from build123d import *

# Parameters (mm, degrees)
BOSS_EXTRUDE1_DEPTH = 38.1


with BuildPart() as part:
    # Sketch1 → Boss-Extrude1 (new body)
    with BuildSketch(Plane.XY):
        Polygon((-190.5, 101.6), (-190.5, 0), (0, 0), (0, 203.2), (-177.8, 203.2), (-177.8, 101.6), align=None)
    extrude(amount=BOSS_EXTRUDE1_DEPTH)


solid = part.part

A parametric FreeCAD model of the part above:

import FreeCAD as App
import Part
import Sketcher
from FreeCAD import Vector
Q = App.Units.Quantity


def add_polygon(sketch, points):
    """Adds a closed chain of lines whose ends are joined by coincident constraints."""
    first, n = sketch.GeometryCount, len(points)
    for a, b in zip(points, points[1:] + points[:1]):
        sketch.addGeometry(Part.LineSegment(App.Vector(*a, 0), App.Vector(*b, 0)), False)
    for i in range(n):
        sketch.addConstraint(Sketcher.Constraint("Coincident", first + i, 2, first + (i + 1) % n, 1))

doc = App.newDocument("Part")
body = doc.addObject("PartDesign::Body", "Body")

# Sketch on XY plane
sketch1 = doc.addObject("Sketcher::SketchObject", "Sketch")
body.addObject(sketch1)
sketch1.AttachmentSupport = (doc.XY_Plane, [""])
sketch1.MapMode = "FlatFace"
add_polygon(sketch1, [(-190, 102), (-190, 0), (0, 0), (0, 203), (-178, 203), (-178, 102)])  # lines 0-5
sketch1.addConstraint([
    Sketcher.Constraint("Vertical", 0),
    Sketcher.Constraint("Horizontal", 1),
    Sketcher.Constraint("Vertical", 2),
    Sketcher.Constraint("Horizontal", 3),
    Sketcher.Constraint("Vertical", 4),
    Sketcher.Constraint("Horizontal", 5),
    Sketcher.Constraint("Coincident", 1, 2, -1, 1),
    Sketcher.Constraint("Equal", 0, 4),
    Sketcher.Constraint("DistanceX", 3, 2, 3, 1, Q("7 in")),
    Sketcher.Constraint("DistanceY", 0, 2, 0, 1, Q("4 in")),
    Sketcher.Constraint("DistanceX", 1, 1, 1, 2, Q("7.5 in")),
])
pad1 = doc.addObject("PartDesign::Pad", "Pad")
body.addObject(pad1)
pad1.Profile = sketch1
pad1.Length = Q("1.5 in")

doc.recompute()
